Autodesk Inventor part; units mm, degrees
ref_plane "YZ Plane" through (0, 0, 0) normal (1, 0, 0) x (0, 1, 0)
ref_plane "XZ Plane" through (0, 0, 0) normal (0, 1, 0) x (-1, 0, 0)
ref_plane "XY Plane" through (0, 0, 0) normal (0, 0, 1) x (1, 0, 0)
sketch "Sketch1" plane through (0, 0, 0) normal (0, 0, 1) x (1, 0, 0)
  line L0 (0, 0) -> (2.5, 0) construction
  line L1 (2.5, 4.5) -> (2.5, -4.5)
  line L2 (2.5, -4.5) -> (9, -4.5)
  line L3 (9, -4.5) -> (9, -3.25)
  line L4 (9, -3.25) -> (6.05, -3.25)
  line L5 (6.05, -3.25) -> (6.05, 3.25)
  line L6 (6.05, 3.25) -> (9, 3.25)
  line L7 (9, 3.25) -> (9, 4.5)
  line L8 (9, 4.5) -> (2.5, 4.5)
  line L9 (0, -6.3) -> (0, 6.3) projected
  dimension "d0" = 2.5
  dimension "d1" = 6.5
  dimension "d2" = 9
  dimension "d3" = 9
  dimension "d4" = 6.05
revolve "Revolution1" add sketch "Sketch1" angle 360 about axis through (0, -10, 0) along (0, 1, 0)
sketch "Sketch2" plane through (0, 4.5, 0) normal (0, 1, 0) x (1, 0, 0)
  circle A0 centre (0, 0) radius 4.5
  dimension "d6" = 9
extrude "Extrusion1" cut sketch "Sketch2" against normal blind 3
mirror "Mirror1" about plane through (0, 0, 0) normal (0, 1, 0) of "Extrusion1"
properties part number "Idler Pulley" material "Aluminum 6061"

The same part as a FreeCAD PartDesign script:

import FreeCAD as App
import Part
import Sketcher

V = App.Vector
Q = App.Units.Quantity

doc = App.newDocument("Part")
body = doc.addObject("PartDesign::Body", "Body")

sketch1 = doc.addObject("Sketcher::SketchObject", "Sketch")
body.addObject(sketch1)
sketch1.AttachmentSupport = (doc.XY_Plane, [""])
sketch1.MapMode = "FlatFace"
sketch1.addGeometry(Part.LineSegment(V(9, 4.5, 0), V(2.5, 4.5, 0)), False)
sketch1.addGeometry(Part.LineSegment(V(2.5, 4.5, 0), V(2.5, -4.5, 0)), False)
sketch1.addGeometry(Part.LineSegment(V(2.5, -4.5, 0), V(9, -4.5, 0)), False)
sketch1.addGeometry(Part.LineSegment(V(9, -4.5, 0), V(9, -3.2, 0)), False)
sketch1.addGeometry(Part.LineSegment(V(9, -3.2, 0), V(6, -3.2, 0)), False)
sketch1.addGeometry(Part.LineSegment(V(6, -3.2, 0), V(6, 3.2, 0)), False)
sketch1.addGeometry(Part.LineSegment(V(6, 3.2, 0), V(9, 3.2, 0)), False)
sketch1.addGeometry(Part.LineSegment(V(9, 3.2, 0), V(9, 4.5, 0)), False)
sketch1.addConstraint(Sketcher.Constraint("Coincident", 0, 2, 1, 1))
sketch1.addConstraint(Sketcher.Constraint("Coincident", 1, 2, 2, 1))
sketch1.addConstraint(Sketcher.Constraint("Coincident", 2, 2, 3, 1))
sketch1.addConstraint(Sketcher.Constraint("Coincident", 3, 2, 4, 1))
sketch1.addConstraint(Sketcher.Constraint("Coincident", 4, 2, 5, 1))
sketch1.addConstraint(Sketcher.Constraint("Coincident", 5, 2, 6, 1))
sketch1.addConstraint(Sketcher.Constraint("Coincident", 6, 2, 7, 1))
sketch1.addConstraint(Sketcher.Constraint("Coincident", 7, 2, 0, 1))
sketch1.addConstraint(Sketcher.Constraint("Horizontal", 0))
sketch1.addConstraint(Sketcher.Constraint("Vertical", 1))
sketch1.addConstraint(Sketcher.Constraint("Horizontal", 2))
sketch1.addConstraint(Sketcher.Constraint("Vertical", 3))
sketch1.addConstraint(Sketcher.Constraint("Horizontal", 4))
sketch1.addConstraint(Sketcher.Constraint("Vertical", 5))
sketch1.addConstraint(Sketcher.Constraint("Horizontal", 6))
sketch1.addConstraint(Sketcher.Constraint("Vertical", 7))
sketch1.addConstraint(Sketcher.Constraint("Symmetric", 3, 2, 6, 2, -1))
sketch1.addConstraint(Sketcher.Constraint("Equal", 2, 5))
sketch1.addConstraint(Sketcher.Constraint("Equal", 3, 7))
sketch1.addConstraint(Sketcher.Constraint("DistanceY", 1, 2, 1, 1, Q("9 mm")))
sketch1.addConstraint(Sketcher.Constraint("DistanceX", 0, 2, 0, 1, Q("6.5 mm")))
sketch1.addConstraint(Sketcher.Constraint("DistanceX", -1, 1, 2, 2, Q("9 mm")))
sketch1.addConstraint(Sketcher.Constraint("DistanceX", -1, 1, 4, 2, Q("6.05 mm")))
revolution = doc.addObject("PartDesign::Revolution", "Revolution")
body.addObject(revolution)
revolution.Profile = sketch1
revolution.ReferenceAxis = (sketch1, ["V_Axis"])
revolution.Angle = 360

sketch2 = doc.addObject("Sketcher::SketchObject", "Sketch001")
body.addObject(sketch2)
sketch2.AttachmentSupport = (doc.XZ_Plane, [""])
sketch2.MapMode = "FlatFace"
sketch2.AttachmentOffset = App.Placement(V(0, 0, -4.5), App.Rotation())
sketch2.addGeometry(Part.Circle(V(0, 0, 0), V(0, 0, 1), 4.5), False)
sketch2.addConstraint(Sketcher.Constraint("Coincident", 0, 3, -1, 1))
sketch2.addConstraint(Sketcher.Constraint("Diameter", 0, Q("9 mm")))
pocket1 = doc.addObject("PartDesign::Pocket", "Pocket")
body.addObject(pocket1)
pocket1.Profile = sketch2
pocket1.Length = 3
pocket1.Reversed = True
doc.recompute()

mirrored = doc.addObject("PartDesign::Mirrored", "Mirrored")
body.addObject(mirrored)
mirrored.Originals = [pocket1]
mirrored.MirrorPlane = (doc.XZ_Plane, [""])
body.Tip = mirrored

doc.recompute()
